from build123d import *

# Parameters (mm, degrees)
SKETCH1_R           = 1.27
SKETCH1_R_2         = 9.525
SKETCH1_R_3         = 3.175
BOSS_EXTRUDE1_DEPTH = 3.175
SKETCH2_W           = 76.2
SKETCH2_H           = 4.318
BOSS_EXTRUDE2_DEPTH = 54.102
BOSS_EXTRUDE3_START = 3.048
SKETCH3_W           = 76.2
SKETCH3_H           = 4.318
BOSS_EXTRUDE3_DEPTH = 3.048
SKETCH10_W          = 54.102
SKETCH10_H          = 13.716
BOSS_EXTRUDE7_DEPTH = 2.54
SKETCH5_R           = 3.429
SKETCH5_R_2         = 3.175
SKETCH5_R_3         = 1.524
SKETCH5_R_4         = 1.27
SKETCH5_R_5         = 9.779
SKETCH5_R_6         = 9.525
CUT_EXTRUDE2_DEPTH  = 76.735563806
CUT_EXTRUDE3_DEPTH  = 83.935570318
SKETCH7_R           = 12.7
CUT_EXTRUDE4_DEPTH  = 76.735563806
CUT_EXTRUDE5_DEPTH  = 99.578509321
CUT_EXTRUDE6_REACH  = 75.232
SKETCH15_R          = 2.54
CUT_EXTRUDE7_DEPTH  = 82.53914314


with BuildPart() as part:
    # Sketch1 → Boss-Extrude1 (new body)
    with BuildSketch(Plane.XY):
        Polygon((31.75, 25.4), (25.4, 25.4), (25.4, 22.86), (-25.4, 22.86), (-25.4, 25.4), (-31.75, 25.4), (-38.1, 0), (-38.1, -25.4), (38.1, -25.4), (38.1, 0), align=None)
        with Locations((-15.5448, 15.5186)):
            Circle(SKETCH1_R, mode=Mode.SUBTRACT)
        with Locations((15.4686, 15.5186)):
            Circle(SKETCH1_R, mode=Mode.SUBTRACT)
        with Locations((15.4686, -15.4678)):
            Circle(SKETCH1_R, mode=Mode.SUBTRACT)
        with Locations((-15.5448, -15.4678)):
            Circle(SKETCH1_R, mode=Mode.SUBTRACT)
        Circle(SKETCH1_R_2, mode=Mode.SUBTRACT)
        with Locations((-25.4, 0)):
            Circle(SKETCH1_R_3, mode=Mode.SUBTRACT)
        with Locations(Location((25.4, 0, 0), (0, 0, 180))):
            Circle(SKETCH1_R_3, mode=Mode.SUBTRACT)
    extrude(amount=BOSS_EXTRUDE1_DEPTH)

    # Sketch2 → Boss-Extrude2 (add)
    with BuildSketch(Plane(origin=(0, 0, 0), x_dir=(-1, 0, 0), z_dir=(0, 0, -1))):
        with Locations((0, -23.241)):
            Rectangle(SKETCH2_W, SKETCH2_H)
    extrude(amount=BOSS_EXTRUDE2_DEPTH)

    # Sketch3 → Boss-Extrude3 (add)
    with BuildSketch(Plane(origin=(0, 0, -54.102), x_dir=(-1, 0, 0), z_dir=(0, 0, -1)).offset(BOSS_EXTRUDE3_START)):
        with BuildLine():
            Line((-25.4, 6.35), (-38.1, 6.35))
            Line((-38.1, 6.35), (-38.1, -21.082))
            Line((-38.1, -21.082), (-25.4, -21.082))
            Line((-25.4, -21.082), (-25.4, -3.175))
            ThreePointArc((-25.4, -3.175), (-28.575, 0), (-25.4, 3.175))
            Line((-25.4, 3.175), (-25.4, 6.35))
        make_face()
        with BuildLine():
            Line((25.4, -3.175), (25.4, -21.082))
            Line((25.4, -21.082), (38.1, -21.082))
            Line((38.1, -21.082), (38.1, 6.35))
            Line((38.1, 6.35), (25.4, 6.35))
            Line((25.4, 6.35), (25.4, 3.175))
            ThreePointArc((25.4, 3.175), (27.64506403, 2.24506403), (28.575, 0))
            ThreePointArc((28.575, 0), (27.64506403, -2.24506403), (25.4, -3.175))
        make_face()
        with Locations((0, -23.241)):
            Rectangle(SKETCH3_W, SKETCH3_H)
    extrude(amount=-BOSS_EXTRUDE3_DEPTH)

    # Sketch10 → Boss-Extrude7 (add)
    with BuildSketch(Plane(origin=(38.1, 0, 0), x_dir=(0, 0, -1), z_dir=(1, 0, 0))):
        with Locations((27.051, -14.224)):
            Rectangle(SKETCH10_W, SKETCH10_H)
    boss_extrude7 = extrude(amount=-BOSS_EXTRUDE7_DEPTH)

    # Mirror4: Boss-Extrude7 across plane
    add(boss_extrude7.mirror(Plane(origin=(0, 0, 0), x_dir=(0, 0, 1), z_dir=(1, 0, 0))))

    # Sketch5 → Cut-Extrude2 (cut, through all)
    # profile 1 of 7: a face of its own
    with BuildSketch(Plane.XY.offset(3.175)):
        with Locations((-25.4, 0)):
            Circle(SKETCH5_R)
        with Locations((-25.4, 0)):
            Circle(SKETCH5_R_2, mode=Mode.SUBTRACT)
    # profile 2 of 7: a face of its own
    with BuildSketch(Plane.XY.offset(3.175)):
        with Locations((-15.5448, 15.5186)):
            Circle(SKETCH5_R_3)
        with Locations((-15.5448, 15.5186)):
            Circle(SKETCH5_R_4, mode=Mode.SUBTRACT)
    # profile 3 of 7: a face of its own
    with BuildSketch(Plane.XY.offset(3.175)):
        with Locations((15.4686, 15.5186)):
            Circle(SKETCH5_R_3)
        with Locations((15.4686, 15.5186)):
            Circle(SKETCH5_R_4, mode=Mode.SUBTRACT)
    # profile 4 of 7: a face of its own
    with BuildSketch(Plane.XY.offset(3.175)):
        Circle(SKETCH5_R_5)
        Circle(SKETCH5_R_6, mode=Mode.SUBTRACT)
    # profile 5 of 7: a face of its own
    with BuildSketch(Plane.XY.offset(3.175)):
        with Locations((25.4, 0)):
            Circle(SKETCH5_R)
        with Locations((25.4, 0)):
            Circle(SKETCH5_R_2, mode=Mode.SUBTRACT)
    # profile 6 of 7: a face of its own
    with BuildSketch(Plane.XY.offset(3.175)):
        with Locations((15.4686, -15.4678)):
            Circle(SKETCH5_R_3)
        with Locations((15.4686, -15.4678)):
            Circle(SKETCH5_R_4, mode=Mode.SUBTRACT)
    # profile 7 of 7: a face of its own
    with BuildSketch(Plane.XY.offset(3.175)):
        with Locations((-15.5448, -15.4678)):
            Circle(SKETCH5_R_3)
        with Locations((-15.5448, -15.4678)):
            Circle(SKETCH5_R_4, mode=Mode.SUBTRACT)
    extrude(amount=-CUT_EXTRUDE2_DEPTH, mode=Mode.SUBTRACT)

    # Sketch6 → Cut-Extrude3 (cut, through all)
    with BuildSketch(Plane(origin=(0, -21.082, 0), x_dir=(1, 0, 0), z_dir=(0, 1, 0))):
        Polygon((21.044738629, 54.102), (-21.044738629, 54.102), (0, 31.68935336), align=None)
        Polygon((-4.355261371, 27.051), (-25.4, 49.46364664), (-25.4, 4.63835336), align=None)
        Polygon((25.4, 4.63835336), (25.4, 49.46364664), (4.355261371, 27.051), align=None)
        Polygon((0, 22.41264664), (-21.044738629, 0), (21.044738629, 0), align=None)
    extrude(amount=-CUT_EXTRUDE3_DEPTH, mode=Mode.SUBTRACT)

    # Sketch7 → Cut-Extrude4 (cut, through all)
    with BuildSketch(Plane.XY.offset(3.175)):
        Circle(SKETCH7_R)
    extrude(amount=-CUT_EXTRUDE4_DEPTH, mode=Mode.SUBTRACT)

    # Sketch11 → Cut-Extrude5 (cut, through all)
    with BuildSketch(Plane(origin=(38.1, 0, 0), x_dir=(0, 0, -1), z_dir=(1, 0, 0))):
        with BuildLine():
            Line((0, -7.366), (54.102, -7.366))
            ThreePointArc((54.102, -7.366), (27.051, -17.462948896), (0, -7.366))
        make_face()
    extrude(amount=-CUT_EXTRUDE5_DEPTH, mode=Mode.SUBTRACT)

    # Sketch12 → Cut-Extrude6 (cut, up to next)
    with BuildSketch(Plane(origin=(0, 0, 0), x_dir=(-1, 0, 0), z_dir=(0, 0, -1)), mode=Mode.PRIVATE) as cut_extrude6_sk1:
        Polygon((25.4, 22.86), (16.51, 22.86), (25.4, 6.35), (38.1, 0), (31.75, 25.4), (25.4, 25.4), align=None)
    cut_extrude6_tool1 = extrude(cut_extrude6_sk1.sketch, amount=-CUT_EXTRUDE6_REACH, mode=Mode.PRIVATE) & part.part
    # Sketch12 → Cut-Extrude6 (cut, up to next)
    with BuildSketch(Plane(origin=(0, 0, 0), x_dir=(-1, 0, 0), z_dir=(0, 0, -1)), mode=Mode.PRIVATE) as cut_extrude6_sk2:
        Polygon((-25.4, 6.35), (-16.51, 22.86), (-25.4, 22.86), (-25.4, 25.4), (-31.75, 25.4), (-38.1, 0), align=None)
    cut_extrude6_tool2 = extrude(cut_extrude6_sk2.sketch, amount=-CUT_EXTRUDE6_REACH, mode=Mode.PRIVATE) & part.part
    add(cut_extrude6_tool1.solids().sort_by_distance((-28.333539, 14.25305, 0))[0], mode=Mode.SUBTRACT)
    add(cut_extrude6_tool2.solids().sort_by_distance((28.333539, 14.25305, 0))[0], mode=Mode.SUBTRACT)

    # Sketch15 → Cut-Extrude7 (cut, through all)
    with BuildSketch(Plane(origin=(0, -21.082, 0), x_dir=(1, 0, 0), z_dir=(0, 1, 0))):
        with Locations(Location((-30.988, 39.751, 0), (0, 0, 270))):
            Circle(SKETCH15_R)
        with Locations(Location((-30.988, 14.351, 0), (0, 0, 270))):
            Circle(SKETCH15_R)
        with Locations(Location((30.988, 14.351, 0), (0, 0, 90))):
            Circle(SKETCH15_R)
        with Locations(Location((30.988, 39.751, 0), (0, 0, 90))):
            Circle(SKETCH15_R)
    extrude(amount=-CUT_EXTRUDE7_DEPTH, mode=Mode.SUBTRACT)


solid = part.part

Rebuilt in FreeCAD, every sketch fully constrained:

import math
import FreeCAD as App
import Part
import Sketcher
Q = App.Units.Quantity


def add_polygon(sketch, points):
    """Adds a closed chain of lines whose ends are joined by coincident constraints."""
    first, n = sketch.GeometryCount, len(points)
    for a, b in zip(points, points[1:] + points[:1]):
        sketch.addGeometry(Part.LineSegment(App.Vector(*a, 0), App.Vector(*b, 0)), False)
    for i in range(n):
        sketch.addConstraint(Sketcher.Constraint("Coincident", first + i, 2, first + (i + 1) % n, 1))

doc = App.newDocument("Part")
body = doc.addObject("PartDesign::Body", "Body")

# Sketch on XY plane
sketch1 = body.newObject("Sketcher::SketchObject", "Sketch")
sketch1.AttachmentSupport = (doc.getObject("XY_Plane"), [""])
sketch1.MapMode = "FlatFace"
add_polygon(sketch1, [(31.75, 25.4), (25.4, 25.4), (25.4, 22.86), (-25.4, 22.86), (-25.4, 25.4), (-31.75, 25.4), (-38.1, 0), (-38.1, -25.4), (38.1, -25.4), (38.1, 0)])  # lines 0-9
sketch1.addGeometry(Part.Circle(App.Vector(-15.5448, -15.4678, 0), App.Vector(0, 0, 1), 1.27), False)  # 10
sketch1.addGeometry(Part.Circle(App.Vector(-25.4, 0, 0), App.Vector(0, 0, 1), 3.175), False)  # 11
sketch1.addGeometry(Part.Circle(App.Vector(0, 0, 0), App.Vector(0, 0, 1), 9.525), False)  # 12
sketch1.addGeometry(Part.Circle(App.Vector(15.4686, -15.4678, 0), App.Vector(0, 0, 1), 1.27), False)  # 13
sketch1.addGeometry(Part.Circle(App.Vector(25.4, 0, 0), App.Vector(0, 0, 1), 3.175), False)  # 14
sketch1.addGeometry(Part.Circle(App.Vector(-15.5448, 15.5186, 0), App.Vector(0, 0, 1), 1.27), False)  # 15
sketch1.addGeometry(Part.Circle(App.Vector(15.4686, 15.5186, 0), App.Vector(0, 0, 1), 1.27), False)  # 16
sketch1.addConstraint([
    Sketcher.Constraint("Horizontal", 0),
    Sketcher.Constraint("Vertical", 1),
    Sketcher.Constraint("Horizontal", 2),
    Sketcher.Constraint("Vertical", 3),
    Sketcher.Constraint("Horizontal", 4),
    Sketcher.Constraint("Vertical", 6),
    Sketcher.Constraint("Horizontal", 7),
    Sketcher.Constraint("Vertical", 8),
    Sketcher.Constraint("Coincident", 12, 3, -1, 1),
    Sketcher.Constraint("Equal", 10, 13),
    Sketcher.Constraint("Equal", 11, 14),
    Sketcher.Constraint("Equal", 13, 15),
    Sketcher.Constraint("Equal", 15, 16),
    Sketcher.Constraint("Symmetric", 11, 3, 14, 3, -1, 1),
    Sketcher.Constraint("Symmetric", 5, 2, 8, 2, -1, 1),
    Sketcher.Constraint("Symmetric", 0, 2, 3, 2, -2),
    Sketcher.Constraint("PointOnObject", 11, 3, -1),
    Sketcher.Constraint("PointOnObject", 5, 2, -1),
    Sketcher.Constraint("Horizontal", 10, 3, 13, 3),
    Sketcher.Constraint("Horizontal", 15, 3, 16, 3),
    Sketcher.Constraint("Vertical", 10, 3, 15, 3),
    Sketcher.Constraint("Vertical", 13, 3, 16, 3),
    Sketcher.Constraint("Vertical", 14, 3, 0, 2),
    Sketcher.Constraint("Equal", 0, 4),
    Sketcher.Constraint("Diameter", 10, Q("0.1 in")),
    Sketcher.Constraint("Diameter", 11, Q("0.25 in")),
    Sketcher.Constraint("Diameter", 12, Q("0.75 in")),
    Sketcher.Constraint("DistanceX", 2, 2, 2, 1, Q("2 in")),
    Sketcher.Constraint("DistanceX", 7, 1, 7, 2, Q("3 in")),
    Sketcher.Constraint("DistanceY", 6, 2, 6, 1, Q("1 in")),
    Sketcher.Constraint("DistanceY", 1, 2, 1, 1, Q("0.1 in")),
    Sketcher.Constraint("DistanceY", -1, 1, 0, 2, Q("1 in")),
    Sketcher.Constraint("DistanceX", 0, 2, 0, 1, Q("0.25 in")),
    Sketcher.Constraint("DistanceX", 10, 3, -1, 1, Q("0.612 in")),
    Sketcher.Constraint("DistanceX", -1, 1, 13, 3, Q("0.609 in")),
    Sketcher.Constraint("DistanceY", 10, 3, -1, 1, 15.4678),
    Sketcher.Constraint("DistanceY", -1, 1, 15, 3, 15.5186),
])
pad1 = body.newObject("PartDesign::Pad", "Pad")
pad1.Profile = sketch1
pad1.Length = Q("0.125 in")

# Sketch on XY plane
sketch2 = body.newObject("Sketcher::SketchObject", "Sketch001")
sketch2.AttachmentSupport = (doc.getObject("XY_Plane"), [""])
sketch2.MapMode = "FlatFace"
add_polygon(sketch2, [(38.1, -21.082), (38.1, -25.4), (-38.1, -25.4), (-38.1, -21.082)])  # lines 0-3
sketch2.addConstraint([
    Sketcher.Constraint("Vertical", 0),
    Sketcher.Constraint("Horizontal", 1),
    Sketcher.Constraint("Vertical", 2),
    Sketcher.Constraint("Horizontal", 3),
    Sketcher.Constraint("DistanceX", 1, 2, 1, 1, Q("3 in")),
    Sketcher.Constraint("DistanceY", 0, 2, -1, 1, Q("1 in")),
    Sketcher.Constraint("DistanceY", 0, 2, 0, 1, Q("0.17 in")),
    Sketcher.Constraint("DistanceX", -1, 1, 0, 2, Q("1.5 in")),
])
pad2 = body.newObject("PartDesign::Pad", "Pad001")
pad2.Profile = sketch2
pad2.Length = Q("2.13 in")
pad2.Reversed = True

# Sketch on XY plane
sketch3 = body.newObject("Sketcher::SketchObject", "Sketch002")
sketch3.AttachmentSupport = (doc.getObject("XY_Plane"), [""])
sketch3.MapMode = "FlatFace"
sketch3.AttachmentOffset = App.Placement(App.Vector(0, 0, -2.25 * 25.4), App.Rotation())
sketch3.addGeometry([
    Part.LineSegment(App.Vector(25.4, 6.35, 0), App.Vector(38.1, 6.35, 0)),  # 0
    Part.LineSegment(App.Vector(38.1, 6.35, 0), App.Vector(38.1, -25.4, 0)),  # 1
    Part.LineSegment(App.Vector(38.1, -25.4, 0), App.Vector(-38.1, -25.4, 0)),  # 2
    Part.LineSegment(App.Vector(-38.1, -25.4, 0), App.Vector(-38.1, 6.35, 0)),  # 3
    Part.LineSegment(App.Vector(-38.1, 6.35, 0), App.Vector(-25.4, 6.35, 0)),  # 4
    Part.LineSegment(App.Vector(-25.4, 6.35, 0), App.Vector(-25.4, 3.175, 0)),  # 5
    Part.ArcOfCircle(Part.Circle(App.Vector(-25.4, 0, 0), App.Vector(0, 0, 1), 3.175), math.radians(90), math.radians(180)),  # 6
    Part.ArcOfCircle(Part.Circle(App.Vector(-25.4, 0, 0), App.Vector(0, 0, 1), 3.175), math.radians(-180), math.radians(-90)),  # 7
    Part.LineSegment(App.Vector(-25.4, -3.175, 0), App.Vector(-25.4, -21.082, 0)),  # 8
    Part.LineSegment(App.Vector(-25.4, -21.082, 0), App.Vector(25.4, -21.082, 0)),  # 9
    Part.LineSegment(App.Vector(25.4, -21.082, 0), App.Vector(25.4, -3.175, 0)),  # 10
    Part.ArcOfCircle(Part.Circle(App.Vector(25.4, 0, 0), App.Vector(0, 0, 1), 3.175), math.radians(-90), math.radians(90)),  # 11
    Part.LineSegment(App.Vector(25.4, 3.175, 0), App.Vector(25.4, 6.35, 0)),  # 12
], False)
sketch3.addConstraint([
    Sketcher.Constraint("Coincident", 0, 2, 1, 1),
    Sketcher.Constraint("Coincident", 1, 2, 2, 1),
    Sketcher.Constraint("Coincident", 2, 2, 3, 1),
    Sketcher.Constraint("Coincident", 3, 2, 4, 1),
    Sketcher.Constraint("Coincident", 4, 2, 5, 1),
    Sketcher.Constraint("Coincident", 5, 2, 6, 1),
    Sketcher.Constraint("Tangent", 6, 2, 7, 1),
    Sketcher.Constraint("Coincident", 7, 2, 8, 1),
    Sketcher.Constraint("Coincident", 8, 2, 9, 1),
    Sketcher.Constraint("Coincident", 9, 2, 10, 1),
    Sketcher.Constraint("Coincident", 10, 2, 11, 1),
    Sketcher.Constraint("Coincident", 11, 2, 12, 1),
    Sketcher.Constraint("Coincident", 12, 2, 0, 1),
    Sketcher.Constraint("Horizontal", 0),
    Sketcher.Constraint("Vertical", 1),
    Sketcher.Constraint("Horizontal", 2),
    Sketcher.Constraint("Vertical", 3),
    Sketcher.Constraint("Horizontal", 4),
    Sketcher.Constraint("Vertical", 5),
    Sketcher.Constraint("Vertical", 8),
    Sketcher.Constraint("Horizontal", 9),
    Sketcher.Constraint("Vertical", 10),
    Sketcher.Constraint("Vertical", 12),
    Sketcher.Constraint("Equal", 6, 7),
    Sketcher.Constraint("Equal", 7, 11),
    Sketcher.Constraint("Symmetric", 6, 3, 11, 3, -1, 1),
    Sketcher.Constraint("Symmetric", 0, 2, 3, 2, -2),
    Sketcher.Constraint("Symmetric", 7, 2, 10, 2, -2),
    Sketcher.Constraint("PointOnObject", 6, 2, -1),
    Sketcher.Constraint("Vertical", 7, 3, 4, 2),
    Sketcher.Constraint("Vertical", 5, 2, 7, 2),
    Sketcher.Constraint("Vertical", 10, 2, 11, 2),
    Sketcher.Constraint("DistanceX", 2, 2, 2, 1, Q("3 in")),
    Sketcher.Constraint("DistanceX", 9, 1, 9, 2, Q("2 in")),
    Sketcher.Constraint("DistanceY", 1, 2, -1, 1, Q("1 in")),
    Sketcher.Constraint("Radius", 6, Q("0.125 in")),
    Sketcher.Constraint("DistanceY", 1, 2, 1, 1, Q("1.25 in")),
    Sketcher.Constraint("DistanceY", 8, 2, 8, 1, Q("0.705 in")),
])
pad3 = body.newObject("PartDesign::Pad", "Pad002")
pad3.Profile = sketch3
pad3.Length = Q("0.12 in")

# Sketch on YZ plane
sketch4 = body.newObject("Sketcher::SketchObject", "Sketch003")
sketch4.AttachmentSupport = (doc.getObject("YZ_Plane"), [""])
sketch4.MapMode = "FlatFace"
sketch4.AttachmentOffset = App.Placement(App.Vector(0, 0, 1.5 * 25.4), App.Rotation())
add_polygon(sketch4, [(-7.366, 0), (-21.082, 0), (-21.082, -54.102), (-7.366, -54.102)])  # lines 0-3
sketch4.addConstraint([
    Sketcher.Constraint("Horizontal", 0),
    Sketcher.Constraint("Vertical", 1),
    Sketcher.Constraint("Horizontal", 2),
    Sketcher.Constraint("Vertical", 3),
    Sketcher.Constraint("PointOnObject", 0, 2, -1),
    Sketcher.Constraint("DistanceX", 0, 2, 0, 1, Q("0.54 in")),
    Sketcher.Constraint("DistanceY", 1, 2, 1, 1, Q("2.13 in")),
    Sketcher.Constraint("DistanceX", 0, 2, -1, 1, Q("0.83 in")),
])
pad4 = body.newObject("PartDesign::Pad", "Pad003")
pad4.Profile = sketch4
pad4.Length = Q("0.1 in")
pad4.Reversed = True
doc.recompute()

mirrored = body.newObject("PartDesign::Mirrored", "Mirrored")
mirrored.Originals = [pad4]
mirrored.MirrorPlane = (doc.getObject("YZ_Plane"), [""])
body.Tip = mirrored

# Sketch on XY plane
sketch5 = body.newObject("Sketcher::SketchObject", "Sketch004")
sketch5.AttachmentSupport = (doc.getObject("XY_Plane"), [""])
sketch5.MapMode = "FlatFace"
sketch5.AttachmentOffset = App.Placement(App.Vector(0, 0, 0.125 * 25.4), App.Rotation())
sketch5.addGeometry([
    Part.Circle(App.Vector(-25.4, 0, 0), App.Vector(0, 0, 1), 3.429),  # 0
    Part.Circle(App.Vector(-25.4, 0, 0), App.Vector(0, 0, 1), 3.175),  # 1
    Part.Circle(App.Vector(-15.5448, 15.5186, 0), App.Vector(0, 0, 1), 1.524),  # 2
    Part.Circle(App.Vector(-15.5448, 15.5186, 0), App.Vector(0, 0, 1), 1.27),  # 3
    Part.Circle(App.Vector(15.4686, 15.5186, 0), App.Vector(0, 0, 1), 1.524),  # 4
    Part.Circle(App.Vector(15.4686, 15.5186, 0), App.Vector(0, 0, 1), 1.27),  # 5
    Part.Circle(App.Vector(0, 0, 0), App.Vector(0, 0, 1), 9.779),  # 6
    Part.Circle(App.Vector(0, 0, 0), App.Vector(0, 0, 1), 9.525),  # 7
    Part.Circle(App.Vector(25.4, 0, 0), App.Vector(0, 0, 1), 3.429),  # 8
    Part.Circle(App.Vector(25.4, 0, 0), App.Vector(0, 0, 1), 3.175),  # 9
    Part.Circle(App.Vector(15.4686, -15.4678, 0), App.Vector(0, 0, 1), 1.524),  # 10
    Part.Circle(App.Vector(15.4686, -15.4678, 0), App.Vector(0, 0, 1), 1.27),  # 11
    Part.Circle(App.Vector(-15.5448, -15.4678, 0), App.Vector(0, 0, 1), 1.524),  # 12
    Part.Circle(App.Vector(-15.5448, -15.4678, 0), App.Vector(0, 0, 1), 1.27),  # 13
], False)
sketch5.addConstraint([
    Sketcher.Constraint("Coincident", 6, 3, -1, 1),
    Sketcher.Constraint("Coincident", 7, 3, -1, 1),
    Sketcher.Constraint("Coincident", 1, 3, 0, 3),
    Sketcher.Constraint("Coincident", 3, 3, 2, 3),
    Sketcher.Constraint("Coincident", 5, 3, 4, 3),
    Sketcher.Constraint("Coincident", 9, 3, 8, 3),
    Sketcher.Constraint("Coincident", 11, 3, 10, 3),
    Sketcher.Constraint("Coincident", 13, 3, 12, 3),
    Sketcher.Constraint("Equal", 2, 4),
    Sketcher.Constraint("Equal", 3, 5),
    Sketcher.Constraint("Equal", 0, 8),
    Sketcher.Constraint("Equal", 1, 9),
    Sketcher.Constraint("Equal", 4, 10),
    Sketcher.Constraint("Equal", 5, 11),
    Sketcher.Constraint("Equal", 10, 12),
    Sketcher.Constraint("Equal", 11, 13),
    Sketcher.Constraint("Symmetric", 0, 3, 8, 3, -1, 1),
    Sketcher.Constraint("PointOnObject", 0, 3, -1),
    Sketcher.Constraint("Horizontal", 3, 3, 4, 3),
    Sketcher.Constraint("Horizontal", 11, 3, 12, 3),
    Sketcher.Constraint("Vertical", 5, 3, 10, 3),
    Sketcher.Constraint("Vertical", 3, 3, 12, 3),
    Sketcher.Constraint("Diameter", 3, Q("0.1 in")),
    Sketcher.Constraint("Diameter", 0, Q("0.27 in")),
    Sketcher.Constraint("Diameter", 1, Q("0.25 in")),
    Sketcher.Constraint("Diameter", 2, Q("0.12 in")),
    Sketcher.Constraint("Diameter", 6, Q("0.77 in")),
    Sketcher.Constraint("Diameter", 7, Q("0.75 in")),
    Sketcher.Constraint("DistanceX", 0, 3, -1, 1, Q("1 in")),
    Sketcher.Constraint("DistanceX", 2, 3, -1, 1, Q("0.612 in")),
    Sketcher.Constraint("DistanceX", -1, 1, 4, 3, Q("0.609 in")),
    Sketcher.Constraint("DistanceY", -1, 1, 2, 3, 15.5186),
    Sketcher.Constraint("DistanceY", 10, 3, -1, 1, 15.4678),
])
pocket1 = body.newObject("PartDesign::Pocket", "Pocket")
pocket1.Profile = sketch5
pocket1.Length = 76.735564

# Sketch on XZ plane
sketch6 = body.newObject("Sketcher::SketchObject", "Sketch005")
sketch6.AttachmentSupport = (doc.getObject("XZ_Plane"), [""])
sketch6.MapMode = "FlatFace"
sketch6.AttachmentOffset = App.Placement(App.Vector(0, 0, 0.83 * 25.4), App.Rotation())
add_polygon(sketch6, [(21.044739, -54.102), (-21.044739, -54.102), (0, -31.689353)])  # lines 0-2
add_polygon(sketch6, [(-4.355261, -27.051), (-25.4, -49.463647), (-25.4, -4.638353)])  # lines 3-5
add_polygon(sketch6, [(25.4, -4.638353), (25.4, -49.463647), (4.355261, -27.051)])  # lines 6-8
add_polygon(sketch6, [(0, -22.412647), (-21.044739, 0), (21.044739, 0)])  # lines 9-11
sketch6.addConstraint([
    Sketcher.Constraint("Horizontal", 0),
    Sketcher.Constraint("Vertical", 4),
    Sketcher.Constraint("Vertical", 6),
    Sketcher.Constraint("Horizontal", 10),
    Sketcher.Constraint("Symmetric", 9, 2, 10, 2, -1, 1),
    Sketcher.Constraint("Symmetric", 3, 2, 6, 2, -2),
    Sketcher.Constraint("Symmetric", 5, 2, 7, 2, -2),
    Sketcher.Constraint("PointOnObject", 1, 2, -2),
    Sketcher.Constraint("PointOnObject", 11, 2, -2),
    Sketcher.Constraint("Parallel", 1, 3),
    Sketcher.Constraint("Parallel", 2, 5),
    Sketcher.Constraint("Parallel", 5, 7),
    Sketcher.Constraint("Parallel", 3, 8),
    Sketcher.Constraint("Parallel", 7, 9),
    Sketcher.Constraint("Vertical", 0, 2, 9, 2),
    Sketcher.Constraint("Equal", 2, 3),
    Sketcher.Constraint("DistanceX", 3, 2, -1, 1, Q("1 in")),
    Sketcher.Constraint("DistanceY", 0, 2, -1, 1, Q("2.13 in")),
    Sketcher.Constraint("DistanceY", 5, 2, -1, 1, Q("1.065 in")),
    Sketcher.Constraint("Distance", 1, 30.744231),
    Sketcher.Constraint("DistanceX", 0, 2, 0, 1, 42.089477),
])
pocket2 = body.newObject("PartDesign::Pocket", "Pocket001")
pocket2.Profile = sketch6
pocket2.Type = "ThroughAll"
pocket2.Reversed = True

# Sketch on XY plane
sketch7 = body.newObject("Sketcher::SketchObject", "Sketch006")
sketch7.AttachmentSupport = (doc.getObject("XY_Plane"), [""])
sketch7.MapMode = "FlatFace"
sketch7.AttachmentOffset = App.Placement(App.Vector(0, 0, 0.125 * 25.4), App.Rotation())
sketch7.addGeometry(Part.Circle(App.Vector(0, 0, 0), App.Vector(0, 0, 1), 12.7), False)
sketch7.addConstraint([
    Sketcher.Constraint("Coincident", 0, 3, -1, 1),
    Sketcher.Constraint("Diameter", 0, Q("1 in")),
])
pocket3 = body.newObject("PartDesign::Pocket", "Pocket002")
pocket3.Profile = sketch7
pocket3.Type = "ThroughAll"

# Sketch on YZ plane
sketch8 = body.newObject("Sketcher::SketchObject", "Sketch007")
sketch8.AttachmentSupport = (doc.getObject("YZ_Plane"), [""])
sketch8.MapMode = "FlatFace"
sketch8.AttachmentOffset = App.Placement(App.Vector(0, 0, 1.5 * 25.4), App.Rotation())
sketch8.addGeometry([
    Part.LineSegment(App.Vector(-7.366, -54.102, 0), App.Vector(-7.366, 0, 0)),
    Part.ArcOfCircle(Part.Circle(App.Vector(23.822047, -27.051, 0), App.Vector(0, 0, 1), 41.284995), math.radians(139.063216), math.radians(220.936784)),
], False)
sketch8.addConstraint([
    Sketcher.Constraint("Coincident", 0, 1, 1, 2),
    Sketcher.Constraint("Coincident", 1, 1, 0, 2),
    Sketcher.Constraint("Vertical", 0),
    Sketcher.Constraint("PointOnObject", 1, 1, -1),
    Sketcher.Constraint("DistanceY", 0, 1, 0, 2, Q("2.13 in")),
    Sketcher.Constraint("DistanceX", 0, 1, -1, 1, Q("0.29 in")),
    Sketcher.Constraint("Radius", 1, 41.284995),
])
pocket4 = body.newObject("PartDesign::Pocket", "Pocket003")
pocket4.Profile = sketch8
pocket4.Type = "ThroughAll"

# Sketch on XY plane
sketch9 = body.newObject("Sketcher::SketchObject", "Sketch008")
sketch9.AttachmentSupport = (doc.getObject("XY_Plane"), [""])
sketch9.MapMode = "FlatFace"
add_polygon(sketch9, [(-25.4, 22.86), (-16.51, 22.86), (-25.4, 6.35), (-38.1, 0), (-31.75, 25.4), (-25.4, 25.4)])  # lines 0-5
sketch9.addConstraint([
    Sketcher.Constraint("Horizontal", 0),
    Sketcher.Constraint("Horizontal", 4),
    Sketcher.Constraint("Vertical", 5),
    Sketcher.Constraint("PointOnObject", 2, 2, -1),
    Sketcher.Constraint("Vertical", 1, 2, 4, 2),
    Sketcher.Constraint("DistanceY", 5, 2, 5, 1, Q("0.1 in")),
    Sketcher.Constraint("DistanceX", 1, 2, -1, 1, Q("1 in")),
    Sketcher.Constraint("DistanceY", -1, 1, 3, 2, Q("1 in")),
    Sketcher.Constraint("DistanceX", 0, 1, 0, 2, Q("0.35 in")),
    Sketcher.Constraint("DistanceX", 4, 1, 4, 2, Q("0.25 in")),
    Sketcher.Constraint("DistanceX", 2, 2, -1, 1, Q("1.5 in")),
    Sketcher.Constraint("DistanceY", -1, 1, 1, 2, Q("0.25 in")),
])
pocket5 = body.newObject("PartDesign::Pocket", "Pocket004")
pocket5.Profile = sketch9
pocket5.Type = "UpToFirst"
pocket5.Reversed = True

# Sketch on XY plane
sketch10 = body.newObject("Sketcher::SketchObject", "Sketch009")
sketch10.AttachmentSupport = (doc.getObject("XY_Plane"), [""])
sketch10.MapMode = "FlatFace"
add_polygon(sketch10, [(25.4, 6.35), (16.51, 22.86), (25.4, 22.86), (25.4, 25.4), (31.75, 25.4), (38.1, 0)])  # lines 0-5
sketch10.addConstraint([
    Sketcher.Constraint("Horizontal", 1),
    Sketcher.Constraint("Vertical", 2),
    Sketcher.Constraint("Horizontal", 3),
    Sketcher.Constraint("PointOnObject", 4, 2, -1),
    Sketcher.Constraint("Vertical", 2, 2, 5, 2),
    Sketcher.Constraint("DistanceY", 2, 1, 2, 2, Q("0.1 in")),
    Sketcher.Constraint("DistanceX", -1, 1, 1, 2, Q("1 in")),
    Sketcher.Constraint("DistanceY", -1, 1, 2, 2, Q("1 in")),
    Sketcher.Constraint("DistanceX", 1, 1, 1, 2, Q("0.35 in")),
    Sketcher.Constraint("DistanceX", 3, 1, 3, 2, Q("0.25 in")),
    Sketcher.Constraint("DistanceX", -1, 1, 4, 2, Q("1.5 in")),
    Sketcher.Constraint("DistanceY", -1, 1, 5, 2, Q("0.25 in")),
])
pocket6 = body.newObject("PartDesign::Pocket", "Pocket005")
pocket6.Profile = sketch10
pocket6.Type = "UpToFirst"
pocket6.Reversed = True

# Sketch on XZ plane
sketch11 = body.newObject("Sketcher::SketchObject", "Sketch010")
sketch11.AttachmentSupport = (doc.getObject("XZ_Plane"), [""])
sketch11.MapMode = "FlatFace"
sketch11.AttachmentOffset = App.Placement(App.Vector(0, 0, 0.83 * 25.4), App.Rotation())
sketch11.addGeometry([
    Part.Circle(App.Vector(-30.988, -39.751, 0), App.Vector(0, 0, 1), 2.54),
    Part.Circle(App.Vector(-30.988, -14.351, 0), App.Vector(0, 0, 1), 2.54),
    Part.Circle(App.Vector(30.988, -14.351, 0), App.Vector(0, 0, 1), 2.54),
    Part.Circle(App.Vector(30.988, -39.751, 0), App.Vector(0, 0, 1), 2.54),
], False)
sketch11.addConstraint([
    Sketcher.Constraint("Equal", 0, 1),
    Sketcher.Constraint("Equal", 1, 2),
    Sketcher.Constraint("Equal", 2, 3),
    Sketcher.Constraint("Symmetric", 1, 3, 2, 3, -2),
    Sketcher.Constraint("Symmetric", 0, 3, 3, 3, -2),
    Sketcher.Constraint("Vertical", 0, 3, 1, 3),
    Sketcher.Constraint("Diameter", 0, Q("0.2 in")),
    Sketcher.Constraint("DistanceY", 0, 3, 1, 3, Q("1 in")),
    Sketcher.Constraint("DistanceX", 0, 3, -1, 1, Q("1.22 in")),
    Sketcher.Constraint("DistanceY", 0, 3, -1, 1, Q("1.565 in")),
])
pocket7 = body.newObject("PartDesign::Pocket", "Pocket006")
pocket7.Profile = sketch11
pocket7.Type = "ThroughAll"
pocket7.Reversed = True

doc.recompute()
